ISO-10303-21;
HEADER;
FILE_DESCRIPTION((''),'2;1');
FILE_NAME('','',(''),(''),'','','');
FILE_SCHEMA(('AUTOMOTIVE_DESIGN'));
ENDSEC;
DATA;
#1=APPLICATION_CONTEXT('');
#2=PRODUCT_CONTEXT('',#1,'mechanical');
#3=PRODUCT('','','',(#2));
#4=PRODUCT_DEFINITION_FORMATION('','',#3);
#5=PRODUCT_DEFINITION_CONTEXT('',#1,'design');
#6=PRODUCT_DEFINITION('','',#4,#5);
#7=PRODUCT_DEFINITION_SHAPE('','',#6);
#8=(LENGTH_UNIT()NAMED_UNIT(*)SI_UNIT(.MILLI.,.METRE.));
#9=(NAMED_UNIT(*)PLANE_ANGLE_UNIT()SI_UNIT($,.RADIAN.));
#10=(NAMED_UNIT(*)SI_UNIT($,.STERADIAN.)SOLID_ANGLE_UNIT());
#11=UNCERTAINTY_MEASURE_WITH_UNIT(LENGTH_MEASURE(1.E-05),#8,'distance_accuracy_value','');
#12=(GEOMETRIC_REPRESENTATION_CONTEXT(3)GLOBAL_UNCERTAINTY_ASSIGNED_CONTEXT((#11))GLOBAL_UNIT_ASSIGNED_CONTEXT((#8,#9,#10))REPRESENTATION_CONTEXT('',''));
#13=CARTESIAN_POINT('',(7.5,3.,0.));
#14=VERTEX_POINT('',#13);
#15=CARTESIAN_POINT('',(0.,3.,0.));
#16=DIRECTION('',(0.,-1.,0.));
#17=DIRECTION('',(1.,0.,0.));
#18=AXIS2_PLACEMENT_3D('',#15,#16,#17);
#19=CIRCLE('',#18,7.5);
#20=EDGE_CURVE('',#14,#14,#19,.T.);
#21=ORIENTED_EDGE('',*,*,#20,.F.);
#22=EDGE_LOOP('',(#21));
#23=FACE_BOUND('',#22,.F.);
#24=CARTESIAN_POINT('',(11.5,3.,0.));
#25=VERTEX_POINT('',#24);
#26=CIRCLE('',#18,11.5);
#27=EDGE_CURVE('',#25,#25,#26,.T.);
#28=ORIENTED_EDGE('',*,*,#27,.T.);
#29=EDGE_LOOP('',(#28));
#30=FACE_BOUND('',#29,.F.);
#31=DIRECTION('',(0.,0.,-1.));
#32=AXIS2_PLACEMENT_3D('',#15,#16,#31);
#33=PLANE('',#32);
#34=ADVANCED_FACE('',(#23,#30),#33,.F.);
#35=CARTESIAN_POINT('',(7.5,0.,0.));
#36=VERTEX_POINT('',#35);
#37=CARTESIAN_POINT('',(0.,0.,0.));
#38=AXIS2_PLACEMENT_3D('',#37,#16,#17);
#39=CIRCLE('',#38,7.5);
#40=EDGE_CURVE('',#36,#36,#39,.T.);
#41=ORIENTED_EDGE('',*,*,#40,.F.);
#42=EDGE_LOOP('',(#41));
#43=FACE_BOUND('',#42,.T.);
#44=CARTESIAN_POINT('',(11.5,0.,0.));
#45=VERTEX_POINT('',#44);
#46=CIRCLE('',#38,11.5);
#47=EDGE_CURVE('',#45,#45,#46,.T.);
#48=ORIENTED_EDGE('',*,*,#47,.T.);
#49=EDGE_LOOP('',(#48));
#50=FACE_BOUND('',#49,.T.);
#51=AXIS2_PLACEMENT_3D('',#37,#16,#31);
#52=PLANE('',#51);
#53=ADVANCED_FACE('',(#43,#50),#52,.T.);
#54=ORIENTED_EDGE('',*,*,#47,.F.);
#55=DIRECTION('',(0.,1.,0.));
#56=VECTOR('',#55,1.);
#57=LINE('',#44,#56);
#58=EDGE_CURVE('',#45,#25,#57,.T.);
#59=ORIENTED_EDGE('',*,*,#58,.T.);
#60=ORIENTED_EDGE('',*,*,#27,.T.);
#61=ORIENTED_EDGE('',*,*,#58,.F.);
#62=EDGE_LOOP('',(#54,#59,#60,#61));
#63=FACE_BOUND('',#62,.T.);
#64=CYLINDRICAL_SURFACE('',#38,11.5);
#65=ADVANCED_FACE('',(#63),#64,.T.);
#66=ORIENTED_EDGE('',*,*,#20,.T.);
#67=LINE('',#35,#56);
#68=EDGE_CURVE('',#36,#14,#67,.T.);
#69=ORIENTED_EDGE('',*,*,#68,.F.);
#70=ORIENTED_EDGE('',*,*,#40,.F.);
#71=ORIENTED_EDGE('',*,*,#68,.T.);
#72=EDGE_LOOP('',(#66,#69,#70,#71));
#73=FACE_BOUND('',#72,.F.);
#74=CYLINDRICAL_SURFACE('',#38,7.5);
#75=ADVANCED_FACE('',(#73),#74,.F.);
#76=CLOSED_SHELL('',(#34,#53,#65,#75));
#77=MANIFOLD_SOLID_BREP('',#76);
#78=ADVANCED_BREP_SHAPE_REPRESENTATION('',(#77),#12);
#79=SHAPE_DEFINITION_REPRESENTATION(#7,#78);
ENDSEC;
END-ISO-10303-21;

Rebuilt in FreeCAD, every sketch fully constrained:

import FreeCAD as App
import Part
import Sketcher
Q = App.Units.Quantity

doc = App.newDocument("Part")
body = doc.addObject("PartDesign::Body", "Body")

# Sketch on XZ plane
sketch1 = body.newObject("Sketcher::SketchObject", "Sketch")
sketch1.AttachmentSupport = (doc.getObject("XZ_Plane"), [""])
sketch1.MapMode = "FlatFace"
sketch1.addGeometry(Part.Circle(App.Vector(0, 0, 0), App.Vector(0, 0, 1), 11.5), False)
sketch1.addGeometry(Part.Circle(App.Vector(0, 0, 0), App.Vector(0, 0, 1), 7.5), False)
sketch1.addConstraint(Sketcher.Constraint("Coincident", 0, 3, -1, 1))
sketch1.addConstraint(Sketcher.Constraint("Coincident", 1, 3, -1, 1))
sketch1.addConstraint(Sketcher.Constraint("Diameter", 0, Q("23 mm")))
sketch1.addConstraint(Sketcher.Constraint("Diameter", 1, Q("15 mm")))
pad1 = body.newObject("PartDesign::Pad", "Pad")
pad1.Profile = sketch1
pad1.Length = 3
pad1.Reversed = True

doc.recompute()
